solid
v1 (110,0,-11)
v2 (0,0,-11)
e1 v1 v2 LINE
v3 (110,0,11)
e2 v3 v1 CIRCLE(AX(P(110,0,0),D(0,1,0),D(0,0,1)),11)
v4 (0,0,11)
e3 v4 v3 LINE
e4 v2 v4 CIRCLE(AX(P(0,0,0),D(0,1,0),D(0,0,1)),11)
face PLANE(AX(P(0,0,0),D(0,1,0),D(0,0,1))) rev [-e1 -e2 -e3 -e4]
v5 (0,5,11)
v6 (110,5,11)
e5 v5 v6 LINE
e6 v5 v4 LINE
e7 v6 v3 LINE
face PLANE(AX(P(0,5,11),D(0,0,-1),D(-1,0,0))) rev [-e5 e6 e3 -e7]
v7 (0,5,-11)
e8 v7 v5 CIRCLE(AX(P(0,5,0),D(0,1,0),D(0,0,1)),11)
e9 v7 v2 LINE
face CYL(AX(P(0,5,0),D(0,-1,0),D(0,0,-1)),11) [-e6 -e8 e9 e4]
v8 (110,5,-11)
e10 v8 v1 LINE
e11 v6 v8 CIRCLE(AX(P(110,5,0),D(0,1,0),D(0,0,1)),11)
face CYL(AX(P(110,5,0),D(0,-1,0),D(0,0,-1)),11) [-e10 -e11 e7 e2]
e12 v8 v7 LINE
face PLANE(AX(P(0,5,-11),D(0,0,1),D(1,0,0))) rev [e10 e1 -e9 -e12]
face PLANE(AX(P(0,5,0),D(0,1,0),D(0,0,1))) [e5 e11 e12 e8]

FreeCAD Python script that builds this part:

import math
import FreeCAD as App
import Part
import Sketcher

V = App.Vector
Q = App.Units.Quantity

doc = App.newDocument("Part")
body = doc.addObject("PartDesign::Body", "Body")

sketch1 = body.newObject("Sketcher::SketchObject", "Sketch")
sketch1.AttachmentSupport = (doc.getObject("XZ_Plane"), [""])
sketch1.MapMode = "FlatFace"
sketch1.addGeometry([
    Part.LineSegment(V(110, -11, 0), V(0, -11, 0)),
    Part.ArcOfCircle(Part.Circle(V(0, 0, 0), V(0, 0, 1), 11), math.radians(90), math.radians(270)),
    Part.LineSegment(V(0, 11, 0), V(110, 11, 0)),
    Part.ArcOfCircle(Part.Circle(V(110, 0, 0), V(0, 0, 1), 11), math.radians(-90), math.radians(90)),
], False)
sketch1.addConstraint([
    Sketcher.Constraint("Tangent", 0, 2, 1, 2),
    Sketcher.Constraint("Tangent", 1, 1, 2, 1),
    Sketcher.Constraint("Tangent", 2, 2, 3, 2),
    Sketcher.Constraint("Tangent", 3, 1, 0, 1),
    Sketcher.Constraint("Horizontal", 0),
    Sketcher.Constraint("Horizontal", 2),
    Sketcher.Constraint("Coincident", 1, 3, -1, 1),
    Sketcher.Constraint("Radius", 1, Q("11 mm")),
    Sketcher.Constraint("DistanceX", 0, 2, 0, 1, Q("110 mm")),
])
pad1 = body.newObject("PartDesign::Pad", "Pad")
pad1.Profile = sketch1
pad1.Length = 5
pad1.Reversed = True

doc.recompute()
